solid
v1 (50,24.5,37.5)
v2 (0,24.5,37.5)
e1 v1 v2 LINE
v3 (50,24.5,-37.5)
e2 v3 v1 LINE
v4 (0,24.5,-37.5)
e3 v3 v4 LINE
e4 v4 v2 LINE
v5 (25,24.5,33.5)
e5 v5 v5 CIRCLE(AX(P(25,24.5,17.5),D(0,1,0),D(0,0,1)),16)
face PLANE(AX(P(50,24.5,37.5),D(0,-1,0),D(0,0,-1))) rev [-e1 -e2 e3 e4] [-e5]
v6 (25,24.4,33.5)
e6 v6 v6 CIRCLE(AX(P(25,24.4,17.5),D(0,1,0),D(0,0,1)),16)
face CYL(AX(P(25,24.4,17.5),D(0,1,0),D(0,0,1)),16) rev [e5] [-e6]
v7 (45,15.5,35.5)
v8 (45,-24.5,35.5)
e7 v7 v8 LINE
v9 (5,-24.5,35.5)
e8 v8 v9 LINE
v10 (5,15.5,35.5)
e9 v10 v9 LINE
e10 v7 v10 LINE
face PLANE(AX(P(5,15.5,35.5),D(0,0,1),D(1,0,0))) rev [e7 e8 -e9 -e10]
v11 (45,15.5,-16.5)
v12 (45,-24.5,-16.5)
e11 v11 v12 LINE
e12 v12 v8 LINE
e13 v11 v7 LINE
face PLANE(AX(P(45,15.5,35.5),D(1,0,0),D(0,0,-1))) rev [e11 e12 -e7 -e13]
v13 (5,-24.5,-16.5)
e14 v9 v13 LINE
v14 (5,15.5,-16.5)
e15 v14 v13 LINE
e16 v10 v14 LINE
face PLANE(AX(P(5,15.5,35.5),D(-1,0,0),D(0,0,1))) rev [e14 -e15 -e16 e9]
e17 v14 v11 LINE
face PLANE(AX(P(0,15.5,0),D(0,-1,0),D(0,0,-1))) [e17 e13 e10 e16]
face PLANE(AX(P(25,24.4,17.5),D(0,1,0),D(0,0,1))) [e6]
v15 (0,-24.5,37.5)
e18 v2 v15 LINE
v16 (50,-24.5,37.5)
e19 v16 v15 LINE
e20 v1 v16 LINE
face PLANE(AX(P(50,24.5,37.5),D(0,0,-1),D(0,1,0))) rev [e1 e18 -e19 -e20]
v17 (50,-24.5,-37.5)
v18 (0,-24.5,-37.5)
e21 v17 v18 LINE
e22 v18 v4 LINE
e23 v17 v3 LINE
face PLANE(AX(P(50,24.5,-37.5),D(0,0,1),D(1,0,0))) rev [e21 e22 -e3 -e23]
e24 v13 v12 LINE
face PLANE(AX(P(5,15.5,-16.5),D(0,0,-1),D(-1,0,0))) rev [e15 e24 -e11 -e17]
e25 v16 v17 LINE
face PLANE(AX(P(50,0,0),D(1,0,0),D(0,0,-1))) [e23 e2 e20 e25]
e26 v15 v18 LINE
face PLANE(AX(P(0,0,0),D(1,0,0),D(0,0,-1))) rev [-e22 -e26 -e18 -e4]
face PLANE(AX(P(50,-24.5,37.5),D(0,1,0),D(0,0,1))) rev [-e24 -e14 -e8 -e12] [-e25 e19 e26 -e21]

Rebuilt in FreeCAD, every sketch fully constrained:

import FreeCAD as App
import Part
import Sketcher
from FreeCAD import Vector

doc = App.newDocument("Part")
body = doc.addObject("PartDesign::Body", "Body")

# Sketch on YZ plane
sketch1 = body.newObject("Sketcher::SketchObject", "Sketch")
sketch1.AttachmentSupport = (doc.getObject("YZ_Plane"), [""])
sketch1.MapMode = "FlatFace"
sketch1.addGeometry([
    Part.LineSegment(Vector(24, 38, 0), Vector(-24, 38, 0)),
    Part.LineSegment(Vector(-24, 38, 0), Vector(-24, -38, 0)),
    Part.LineSegment(Vector(-24, -38, 0), Vector(24, -38, 0)),
    Part.LineSegment(Vector(24, -38, 0), Vector(24, 38, 0)),
], False)
sketch1.addConstraint([
    Sketcher.Constraint("Coincident", 0, 2, 1, 1),
    Sketcher.Constraint("Coincident", 1, 2, 2, 1),
    Sketcher.Constraint("Coincident", 2, 2, 3, 1),
    Sketcher.Constraint("Coincident", 3, 2, 0, 1),
    Sketcher.Constraint("Horizontal", 0),
    Sketcher.Constraint("Vertical", 1),
    Sketcher.Constraint("Horizontal", 2),
    Sketcher.Constraint("Vertical", 3),
    Sketcher.Constraint("Symmetric", 0, 2, 2, 2, -1, 1),
    Sketcher.Constraint("DistanceX", 0, 2, 0, 1, 49.0),
    Sketcher.Constraint("DistanceY", 1, 2, 1, 1, 75.0),
])
pad1 = body.newObject("PartDesign::Pad", "Pad")
pad1.Profile = sketch1
pad1.Length = 50

# Sketch on XZ plane
sketch2 = body.newObject("Sketcher::SketchObject", "Sketch001")
sketch2.AttachmentSupport = (doc.getObject("XZ_Plane"), [""])
sketch2.MapMode = "FlatFace"
sketch2.AttachmentOffset = App.Placement(Vector(0, 0, 24.5), App.Rotation())
sketch2.addGeometry([
    Part.LineSegment(Vector(5, 36, 0), Vector(5, -16, 0)),
    Part.LineSegment(Vector(5, -16, 0), Vector(45, -16, 0)),
    Part.LineSegment(Vector(45, -16, 0), Vector(45, 36, 0)),
    Part.LineSegment(Vector(45, 36, 0), Vector(5, 36, 0)),
], False)
sketch2.addConstraint([
    Sketcher.Constraint("Coincident", 0, 2, 1, 1),
    Sketcher.Constraint("Coincident", 1, 2, 2, 1),
    Sketcher.Constraint("Coincident", 2, 2, 3, 1),
    Sketcher.Constraint("Coincident", 3, 2, 0, 1),
    Sketcher.Constraint("Vertical", 0),
    Sketcher.Constraint("Horizontal", 1),
    Sketcher.Constraint("Vertical", 2),
    Sketcher.Constraint("Horizontal", 3),
    Sketcher.Constraint("DistanceX", 1, 1, 1, 2, 40.0),
    Sketcher.Constraint("DistanceY", 0, 2, 0, 1, 52.0),
    Sketcher.Constraint("DistanceX", -1, 1, 0, 2, 5.0),
    Sketcher.Constraint("DistanceY", 0, 2, -1, 1, 16.5),
])
pocket1 = body.newObject("PartDesign::Pocket", "Pocket")
pocket1.Profile = sketch2
pocket1.Length = 40

# Sketch on XZ plane
sketch3 = body.newObject("Sketcher::SketchObject", "Sketch002")
sketch3.AttachmentSupport = (doc.getObject("XZ_Plane"), [""])
sketch3.MapMode = "FlatFace"
sketch3.AttachmentOffset = App.Placement(Vector(0, 0, -24.5), App.Rotation())
sketch3.addGeometry(Part.Circle(Vector(25, 18, 0), Vector(0, 0, 1), 16), False)
sketch3.addConstraint([
    Sketcher.Constraint("Diameter", 0, 32.0),
    Sketcher.Constraint("DistanceX", -1, 1, 0, 3, 25.0),
    Sketcher.Constraint("DistanceY", -1, 1, 0, 3, 17.5),
])
pocket2 = body.newObject("PartDesign::Pocket", "Pocket001")
pocket2.Profile = sketch3
pocket2.Length = 0.1
pocket2.Reversed = True

doc.recompute()
